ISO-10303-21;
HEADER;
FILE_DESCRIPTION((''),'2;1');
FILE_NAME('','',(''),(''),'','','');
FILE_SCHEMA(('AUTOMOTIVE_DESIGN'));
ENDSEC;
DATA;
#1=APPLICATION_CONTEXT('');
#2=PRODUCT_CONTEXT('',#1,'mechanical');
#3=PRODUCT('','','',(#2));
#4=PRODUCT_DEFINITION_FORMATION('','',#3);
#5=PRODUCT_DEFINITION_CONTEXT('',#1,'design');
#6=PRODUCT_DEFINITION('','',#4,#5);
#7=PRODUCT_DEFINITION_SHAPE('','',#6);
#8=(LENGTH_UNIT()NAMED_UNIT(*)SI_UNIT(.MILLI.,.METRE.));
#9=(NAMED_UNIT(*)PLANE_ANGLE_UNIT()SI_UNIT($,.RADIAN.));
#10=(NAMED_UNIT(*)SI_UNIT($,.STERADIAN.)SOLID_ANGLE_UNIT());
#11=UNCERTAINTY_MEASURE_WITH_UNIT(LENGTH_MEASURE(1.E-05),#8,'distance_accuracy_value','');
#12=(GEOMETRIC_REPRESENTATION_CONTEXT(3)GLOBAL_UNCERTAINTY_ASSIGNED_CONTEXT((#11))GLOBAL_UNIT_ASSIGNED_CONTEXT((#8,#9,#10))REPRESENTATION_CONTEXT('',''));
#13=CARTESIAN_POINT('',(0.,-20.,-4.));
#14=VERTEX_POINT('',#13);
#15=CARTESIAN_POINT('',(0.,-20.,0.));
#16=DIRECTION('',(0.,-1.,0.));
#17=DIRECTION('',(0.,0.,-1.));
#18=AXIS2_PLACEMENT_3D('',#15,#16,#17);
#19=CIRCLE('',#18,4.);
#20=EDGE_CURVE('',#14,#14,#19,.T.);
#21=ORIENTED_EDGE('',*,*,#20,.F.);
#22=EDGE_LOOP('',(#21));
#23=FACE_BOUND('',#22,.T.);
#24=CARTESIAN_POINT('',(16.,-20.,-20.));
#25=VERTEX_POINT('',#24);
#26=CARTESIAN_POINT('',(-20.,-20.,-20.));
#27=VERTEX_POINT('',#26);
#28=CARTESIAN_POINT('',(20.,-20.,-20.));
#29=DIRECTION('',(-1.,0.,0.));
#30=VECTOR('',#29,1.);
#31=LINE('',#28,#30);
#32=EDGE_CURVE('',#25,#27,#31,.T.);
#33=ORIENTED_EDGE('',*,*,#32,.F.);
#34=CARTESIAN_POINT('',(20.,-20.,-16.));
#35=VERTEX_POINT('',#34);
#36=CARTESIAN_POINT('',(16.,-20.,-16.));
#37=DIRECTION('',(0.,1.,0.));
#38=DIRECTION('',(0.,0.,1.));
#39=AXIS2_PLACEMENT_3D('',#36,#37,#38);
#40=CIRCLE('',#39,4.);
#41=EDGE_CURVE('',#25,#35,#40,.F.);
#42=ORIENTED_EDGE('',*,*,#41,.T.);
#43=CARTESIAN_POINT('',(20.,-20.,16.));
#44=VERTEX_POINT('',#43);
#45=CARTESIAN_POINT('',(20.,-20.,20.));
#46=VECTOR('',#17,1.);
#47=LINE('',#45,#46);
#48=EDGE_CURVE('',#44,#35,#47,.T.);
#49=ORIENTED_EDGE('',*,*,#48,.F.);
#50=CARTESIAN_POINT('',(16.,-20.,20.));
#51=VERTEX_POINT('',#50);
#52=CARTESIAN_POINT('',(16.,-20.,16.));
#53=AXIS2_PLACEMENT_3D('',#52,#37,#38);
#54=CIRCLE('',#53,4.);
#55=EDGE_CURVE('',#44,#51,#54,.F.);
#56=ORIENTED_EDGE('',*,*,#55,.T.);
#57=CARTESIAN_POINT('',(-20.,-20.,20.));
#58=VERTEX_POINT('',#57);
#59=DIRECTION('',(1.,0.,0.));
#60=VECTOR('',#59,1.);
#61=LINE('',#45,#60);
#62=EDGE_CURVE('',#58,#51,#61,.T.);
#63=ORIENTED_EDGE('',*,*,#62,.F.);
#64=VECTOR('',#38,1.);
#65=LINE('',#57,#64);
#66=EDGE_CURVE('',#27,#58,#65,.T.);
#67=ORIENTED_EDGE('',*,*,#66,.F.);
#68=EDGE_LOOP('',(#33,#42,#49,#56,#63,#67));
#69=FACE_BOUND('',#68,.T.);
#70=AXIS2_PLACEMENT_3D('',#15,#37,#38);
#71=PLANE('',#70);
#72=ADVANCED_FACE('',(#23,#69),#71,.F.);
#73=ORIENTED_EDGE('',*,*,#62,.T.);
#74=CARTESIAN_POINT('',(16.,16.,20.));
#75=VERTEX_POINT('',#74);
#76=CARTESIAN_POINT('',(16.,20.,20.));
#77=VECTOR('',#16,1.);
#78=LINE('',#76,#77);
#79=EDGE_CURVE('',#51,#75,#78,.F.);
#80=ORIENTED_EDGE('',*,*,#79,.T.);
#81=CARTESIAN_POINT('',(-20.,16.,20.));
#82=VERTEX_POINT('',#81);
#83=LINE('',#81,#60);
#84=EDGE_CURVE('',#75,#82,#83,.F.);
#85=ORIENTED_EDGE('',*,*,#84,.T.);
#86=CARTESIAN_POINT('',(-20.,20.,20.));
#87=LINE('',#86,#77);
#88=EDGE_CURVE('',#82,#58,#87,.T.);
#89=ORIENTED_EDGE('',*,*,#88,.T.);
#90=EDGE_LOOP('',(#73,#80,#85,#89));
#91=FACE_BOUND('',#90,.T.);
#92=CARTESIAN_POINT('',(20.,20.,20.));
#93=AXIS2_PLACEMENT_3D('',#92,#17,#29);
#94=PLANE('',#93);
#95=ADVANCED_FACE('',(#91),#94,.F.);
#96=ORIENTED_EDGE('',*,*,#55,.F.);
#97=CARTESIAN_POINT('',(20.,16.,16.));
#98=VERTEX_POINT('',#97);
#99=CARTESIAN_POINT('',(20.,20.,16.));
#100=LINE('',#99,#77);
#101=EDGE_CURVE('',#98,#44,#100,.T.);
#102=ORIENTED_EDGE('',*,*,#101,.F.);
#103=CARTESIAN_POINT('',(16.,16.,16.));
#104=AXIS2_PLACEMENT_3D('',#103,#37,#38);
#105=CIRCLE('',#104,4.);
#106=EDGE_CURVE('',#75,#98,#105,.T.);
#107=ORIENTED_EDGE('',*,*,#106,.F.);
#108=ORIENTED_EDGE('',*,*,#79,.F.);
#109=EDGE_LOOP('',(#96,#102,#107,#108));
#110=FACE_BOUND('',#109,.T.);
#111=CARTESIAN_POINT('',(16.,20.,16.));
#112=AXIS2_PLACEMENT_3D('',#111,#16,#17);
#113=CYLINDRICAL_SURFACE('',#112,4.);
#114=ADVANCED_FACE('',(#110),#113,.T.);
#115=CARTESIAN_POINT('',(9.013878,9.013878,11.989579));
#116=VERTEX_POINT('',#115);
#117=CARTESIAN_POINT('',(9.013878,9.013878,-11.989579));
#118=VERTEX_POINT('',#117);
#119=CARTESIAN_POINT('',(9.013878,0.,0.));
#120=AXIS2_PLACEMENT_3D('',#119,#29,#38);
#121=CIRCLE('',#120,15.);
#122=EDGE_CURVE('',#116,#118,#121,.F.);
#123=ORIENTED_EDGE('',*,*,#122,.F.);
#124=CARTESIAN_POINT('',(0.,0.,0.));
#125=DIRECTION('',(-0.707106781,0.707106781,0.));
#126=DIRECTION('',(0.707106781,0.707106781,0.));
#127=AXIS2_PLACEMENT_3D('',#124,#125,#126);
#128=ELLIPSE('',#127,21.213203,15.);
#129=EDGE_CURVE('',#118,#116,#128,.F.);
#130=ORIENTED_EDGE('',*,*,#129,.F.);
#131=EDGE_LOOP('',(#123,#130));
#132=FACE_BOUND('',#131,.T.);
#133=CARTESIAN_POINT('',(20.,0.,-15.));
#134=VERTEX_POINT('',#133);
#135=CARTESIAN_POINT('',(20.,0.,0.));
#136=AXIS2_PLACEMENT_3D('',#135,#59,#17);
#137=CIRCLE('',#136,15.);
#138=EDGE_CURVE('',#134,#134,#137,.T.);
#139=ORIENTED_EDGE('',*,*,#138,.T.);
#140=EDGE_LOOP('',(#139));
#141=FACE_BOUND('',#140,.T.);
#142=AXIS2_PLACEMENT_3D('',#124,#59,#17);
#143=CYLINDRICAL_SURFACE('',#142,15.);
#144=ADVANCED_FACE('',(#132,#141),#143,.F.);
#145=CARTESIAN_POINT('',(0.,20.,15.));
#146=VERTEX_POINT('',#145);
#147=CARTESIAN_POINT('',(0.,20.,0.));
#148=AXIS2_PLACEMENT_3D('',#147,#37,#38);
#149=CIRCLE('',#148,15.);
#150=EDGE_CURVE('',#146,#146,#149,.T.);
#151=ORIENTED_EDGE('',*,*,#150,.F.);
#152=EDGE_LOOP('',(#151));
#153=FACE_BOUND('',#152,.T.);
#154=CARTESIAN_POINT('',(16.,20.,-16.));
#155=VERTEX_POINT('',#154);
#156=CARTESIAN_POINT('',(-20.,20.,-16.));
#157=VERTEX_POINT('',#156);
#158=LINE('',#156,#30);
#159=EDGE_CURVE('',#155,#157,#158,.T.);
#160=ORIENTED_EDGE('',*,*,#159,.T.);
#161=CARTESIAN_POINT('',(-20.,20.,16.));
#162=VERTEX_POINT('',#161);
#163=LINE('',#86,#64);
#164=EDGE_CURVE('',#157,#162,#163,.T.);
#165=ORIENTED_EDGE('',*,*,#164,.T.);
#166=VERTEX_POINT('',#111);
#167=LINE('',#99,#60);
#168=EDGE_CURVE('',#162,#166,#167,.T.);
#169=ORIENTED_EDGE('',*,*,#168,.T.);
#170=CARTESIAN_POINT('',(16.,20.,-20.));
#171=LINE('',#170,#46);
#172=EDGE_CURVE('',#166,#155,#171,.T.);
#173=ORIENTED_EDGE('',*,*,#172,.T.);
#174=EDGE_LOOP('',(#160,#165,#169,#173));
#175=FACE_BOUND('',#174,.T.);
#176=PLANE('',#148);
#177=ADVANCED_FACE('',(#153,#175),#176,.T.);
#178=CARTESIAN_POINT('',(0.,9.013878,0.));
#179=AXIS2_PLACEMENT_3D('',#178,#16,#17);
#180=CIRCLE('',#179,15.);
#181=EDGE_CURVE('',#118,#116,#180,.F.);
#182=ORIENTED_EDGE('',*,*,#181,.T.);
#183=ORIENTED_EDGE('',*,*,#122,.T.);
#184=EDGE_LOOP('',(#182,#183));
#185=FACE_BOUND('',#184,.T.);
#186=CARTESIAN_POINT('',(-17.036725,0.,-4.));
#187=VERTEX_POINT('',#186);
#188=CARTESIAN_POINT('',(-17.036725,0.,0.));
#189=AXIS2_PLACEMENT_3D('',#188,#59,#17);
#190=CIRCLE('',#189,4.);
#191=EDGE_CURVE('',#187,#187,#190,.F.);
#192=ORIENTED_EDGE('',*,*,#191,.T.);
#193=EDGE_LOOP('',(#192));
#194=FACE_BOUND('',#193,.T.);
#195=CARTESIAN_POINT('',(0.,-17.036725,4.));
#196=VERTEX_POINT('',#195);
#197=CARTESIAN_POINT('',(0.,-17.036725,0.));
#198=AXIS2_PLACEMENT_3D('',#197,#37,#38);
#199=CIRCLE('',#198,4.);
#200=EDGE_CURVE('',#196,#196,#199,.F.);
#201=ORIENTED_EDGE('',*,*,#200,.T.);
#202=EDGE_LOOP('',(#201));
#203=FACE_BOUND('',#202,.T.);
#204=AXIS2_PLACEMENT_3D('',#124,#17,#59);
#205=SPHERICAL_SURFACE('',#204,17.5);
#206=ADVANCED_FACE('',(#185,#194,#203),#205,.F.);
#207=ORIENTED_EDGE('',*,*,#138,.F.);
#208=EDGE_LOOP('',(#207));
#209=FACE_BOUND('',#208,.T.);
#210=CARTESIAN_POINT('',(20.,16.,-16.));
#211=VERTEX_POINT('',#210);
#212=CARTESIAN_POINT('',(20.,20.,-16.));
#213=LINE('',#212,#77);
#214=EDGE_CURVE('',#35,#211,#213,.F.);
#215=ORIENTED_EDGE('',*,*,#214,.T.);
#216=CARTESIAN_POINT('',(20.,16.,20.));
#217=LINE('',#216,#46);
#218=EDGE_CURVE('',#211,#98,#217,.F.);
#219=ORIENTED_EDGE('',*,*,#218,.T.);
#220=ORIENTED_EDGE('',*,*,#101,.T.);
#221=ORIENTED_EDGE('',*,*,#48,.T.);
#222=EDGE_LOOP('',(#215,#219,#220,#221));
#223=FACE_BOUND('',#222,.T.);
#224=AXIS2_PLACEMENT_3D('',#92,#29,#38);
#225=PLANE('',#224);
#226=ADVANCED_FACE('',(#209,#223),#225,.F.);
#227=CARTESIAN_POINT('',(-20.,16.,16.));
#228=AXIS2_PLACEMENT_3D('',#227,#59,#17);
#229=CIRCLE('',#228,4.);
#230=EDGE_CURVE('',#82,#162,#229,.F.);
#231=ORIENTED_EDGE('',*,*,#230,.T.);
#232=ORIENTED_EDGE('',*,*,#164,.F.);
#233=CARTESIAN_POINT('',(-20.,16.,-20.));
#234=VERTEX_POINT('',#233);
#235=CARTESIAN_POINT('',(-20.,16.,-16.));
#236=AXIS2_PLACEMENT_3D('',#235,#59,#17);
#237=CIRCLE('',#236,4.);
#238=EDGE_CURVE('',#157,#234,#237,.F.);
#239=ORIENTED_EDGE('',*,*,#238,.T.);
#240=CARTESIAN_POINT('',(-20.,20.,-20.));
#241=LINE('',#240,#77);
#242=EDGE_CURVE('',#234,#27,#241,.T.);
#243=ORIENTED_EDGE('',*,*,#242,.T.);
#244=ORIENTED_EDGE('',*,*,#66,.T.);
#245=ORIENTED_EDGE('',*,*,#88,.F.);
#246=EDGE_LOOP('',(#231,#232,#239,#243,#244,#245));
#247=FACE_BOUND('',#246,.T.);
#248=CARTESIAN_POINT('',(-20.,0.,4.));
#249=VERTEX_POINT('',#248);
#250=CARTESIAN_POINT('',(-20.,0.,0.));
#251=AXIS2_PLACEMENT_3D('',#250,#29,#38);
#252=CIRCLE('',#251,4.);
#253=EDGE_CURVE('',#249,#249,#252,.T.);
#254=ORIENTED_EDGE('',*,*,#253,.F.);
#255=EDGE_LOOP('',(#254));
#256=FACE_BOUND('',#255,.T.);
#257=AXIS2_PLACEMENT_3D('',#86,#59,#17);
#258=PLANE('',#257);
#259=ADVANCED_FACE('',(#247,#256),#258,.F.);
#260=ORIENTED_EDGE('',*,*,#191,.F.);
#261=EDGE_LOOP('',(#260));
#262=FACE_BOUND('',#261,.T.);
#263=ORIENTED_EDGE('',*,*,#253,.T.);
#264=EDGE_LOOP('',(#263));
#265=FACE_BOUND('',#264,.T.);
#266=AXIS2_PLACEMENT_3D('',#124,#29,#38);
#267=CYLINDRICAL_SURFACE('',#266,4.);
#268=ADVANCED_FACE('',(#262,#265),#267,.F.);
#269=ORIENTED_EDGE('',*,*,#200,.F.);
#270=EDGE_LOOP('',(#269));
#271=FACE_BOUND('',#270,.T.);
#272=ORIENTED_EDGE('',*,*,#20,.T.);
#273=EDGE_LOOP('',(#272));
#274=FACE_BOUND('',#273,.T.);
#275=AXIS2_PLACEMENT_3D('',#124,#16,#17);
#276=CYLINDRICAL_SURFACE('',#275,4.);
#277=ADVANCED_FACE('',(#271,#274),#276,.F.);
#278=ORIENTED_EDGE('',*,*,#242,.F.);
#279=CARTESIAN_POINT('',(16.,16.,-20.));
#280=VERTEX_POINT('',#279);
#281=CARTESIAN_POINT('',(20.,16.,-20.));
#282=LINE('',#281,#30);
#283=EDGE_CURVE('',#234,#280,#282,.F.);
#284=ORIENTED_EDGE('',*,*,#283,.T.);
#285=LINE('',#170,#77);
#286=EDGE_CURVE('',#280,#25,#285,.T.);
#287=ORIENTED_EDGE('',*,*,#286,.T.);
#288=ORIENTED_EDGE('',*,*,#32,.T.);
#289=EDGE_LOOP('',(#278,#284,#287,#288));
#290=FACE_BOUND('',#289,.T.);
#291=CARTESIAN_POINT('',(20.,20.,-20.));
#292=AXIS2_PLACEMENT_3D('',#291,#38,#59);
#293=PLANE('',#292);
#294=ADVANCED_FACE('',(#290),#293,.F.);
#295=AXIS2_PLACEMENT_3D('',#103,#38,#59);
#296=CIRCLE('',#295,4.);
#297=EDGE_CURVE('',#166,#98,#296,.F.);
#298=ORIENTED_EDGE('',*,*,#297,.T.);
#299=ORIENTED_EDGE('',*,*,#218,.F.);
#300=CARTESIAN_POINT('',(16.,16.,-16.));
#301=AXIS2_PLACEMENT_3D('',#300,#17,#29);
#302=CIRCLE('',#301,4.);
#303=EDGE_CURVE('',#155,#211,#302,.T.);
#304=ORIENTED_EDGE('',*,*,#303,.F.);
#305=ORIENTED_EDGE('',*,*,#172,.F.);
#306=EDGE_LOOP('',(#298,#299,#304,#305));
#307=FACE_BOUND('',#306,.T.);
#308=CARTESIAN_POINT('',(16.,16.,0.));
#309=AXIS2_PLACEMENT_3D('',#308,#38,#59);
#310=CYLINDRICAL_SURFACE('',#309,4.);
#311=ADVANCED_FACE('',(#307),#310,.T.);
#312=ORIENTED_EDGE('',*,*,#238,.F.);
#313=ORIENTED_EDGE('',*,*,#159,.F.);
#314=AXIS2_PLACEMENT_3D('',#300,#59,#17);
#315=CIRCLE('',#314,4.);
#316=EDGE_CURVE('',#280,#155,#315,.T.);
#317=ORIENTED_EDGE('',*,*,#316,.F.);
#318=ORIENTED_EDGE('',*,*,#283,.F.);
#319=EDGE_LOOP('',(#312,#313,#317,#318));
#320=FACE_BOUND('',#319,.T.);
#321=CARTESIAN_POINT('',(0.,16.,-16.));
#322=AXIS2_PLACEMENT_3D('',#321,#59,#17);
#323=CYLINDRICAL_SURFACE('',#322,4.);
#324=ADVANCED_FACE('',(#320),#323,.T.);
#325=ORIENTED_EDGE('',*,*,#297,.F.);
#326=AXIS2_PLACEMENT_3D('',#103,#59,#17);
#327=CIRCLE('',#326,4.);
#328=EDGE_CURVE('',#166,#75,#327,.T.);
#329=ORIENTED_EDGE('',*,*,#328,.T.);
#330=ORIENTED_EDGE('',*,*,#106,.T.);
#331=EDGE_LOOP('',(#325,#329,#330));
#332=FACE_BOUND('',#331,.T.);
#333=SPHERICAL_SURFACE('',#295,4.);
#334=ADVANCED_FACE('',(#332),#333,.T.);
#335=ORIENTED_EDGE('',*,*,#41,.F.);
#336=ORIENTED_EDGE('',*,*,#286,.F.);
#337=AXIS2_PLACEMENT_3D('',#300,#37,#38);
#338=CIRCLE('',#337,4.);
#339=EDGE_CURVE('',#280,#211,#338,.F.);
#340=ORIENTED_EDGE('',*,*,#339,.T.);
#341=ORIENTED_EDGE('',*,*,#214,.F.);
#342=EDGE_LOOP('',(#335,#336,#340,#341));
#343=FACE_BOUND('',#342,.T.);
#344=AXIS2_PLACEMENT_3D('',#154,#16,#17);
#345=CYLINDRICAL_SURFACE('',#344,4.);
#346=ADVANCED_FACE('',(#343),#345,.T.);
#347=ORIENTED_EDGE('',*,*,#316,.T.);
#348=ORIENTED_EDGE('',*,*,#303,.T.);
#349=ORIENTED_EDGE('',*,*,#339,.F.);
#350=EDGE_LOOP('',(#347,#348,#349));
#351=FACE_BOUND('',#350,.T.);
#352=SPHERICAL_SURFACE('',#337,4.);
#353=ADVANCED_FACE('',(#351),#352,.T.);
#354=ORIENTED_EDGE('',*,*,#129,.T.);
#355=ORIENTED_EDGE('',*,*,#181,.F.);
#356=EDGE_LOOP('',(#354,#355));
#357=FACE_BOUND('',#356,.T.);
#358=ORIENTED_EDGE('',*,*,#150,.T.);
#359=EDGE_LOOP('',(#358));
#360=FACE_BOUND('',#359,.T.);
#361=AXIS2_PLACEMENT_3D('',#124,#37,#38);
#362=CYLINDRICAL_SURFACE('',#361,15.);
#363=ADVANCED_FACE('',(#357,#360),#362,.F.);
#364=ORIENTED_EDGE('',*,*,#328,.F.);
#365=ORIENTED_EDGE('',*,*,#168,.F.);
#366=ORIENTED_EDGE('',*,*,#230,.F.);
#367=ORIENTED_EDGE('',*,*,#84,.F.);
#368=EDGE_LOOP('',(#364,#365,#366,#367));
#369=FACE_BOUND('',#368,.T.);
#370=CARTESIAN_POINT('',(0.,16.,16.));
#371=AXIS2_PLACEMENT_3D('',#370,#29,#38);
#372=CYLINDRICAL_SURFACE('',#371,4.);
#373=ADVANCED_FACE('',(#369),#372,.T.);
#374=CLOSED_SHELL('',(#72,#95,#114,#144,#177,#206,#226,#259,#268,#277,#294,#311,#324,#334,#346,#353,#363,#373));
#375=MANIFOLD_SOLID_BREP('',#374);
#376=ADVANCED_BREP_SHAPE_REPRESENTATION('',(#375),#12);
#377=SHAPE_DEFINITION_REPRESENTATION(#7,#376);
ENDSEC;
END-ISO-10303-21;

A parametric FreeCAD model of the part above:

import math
import FreeCAD as App
import Part
import Sketcher


def edges_at(feature, points):
    """Names of the edges that pass closest to the given points."""
    edges = feature.Shape.Edges
    near = lambda p: min(range(len(edges)), key=lambda i: edges[i].distToShape(Part.Vertex(*p))[0])
    return sorted({f"Edge{near(p) + 1}" for p in points})


def add_polygon(sketch, points):
    """Adds a closed chain of lines whose ends are joined by coincident constraints."""
    first, n = sketch.GeometryCount, len(points)
    for a, b in zip(points, points[1:] + points[:1]):
        sketch.addGeometry(Part.LineSegment(App.Vector(*a, 0), App.Vector(*b, 0)), False)
    for i in range(n):
        sketch.addConstraint(Sketcher.Constraint("Coincident", first + i, 2, first + (i + 1) % n, 1))

doc = App.newDocument("Part")
body = doc.addObject("PartDesign::Body", "Body")

# Sketch on XZ plane
sketch1 = body.newObject("Sketcher::SketchObject", "Sketch")
sketch1.AttachmentSupport = (doc.getObject("XZ_Plane"), [""])
sketch1.MapMode = "FlatFace"
add_polygon(sketch1, [(-20, -20), (-20, 20), (20, 20), (20, -20)])  # lines 0-3
sketch1.addConstraint(Sketcher.Constraint("Vertical", 0))
sketch1.addConstraint(Sketcher.Constraint("Horizontal", 1))
sketch1.addConstraint(Sketcher.Constraint("Vertical", 2))
sketch1.addConstraint(Sketcher.Constraint("Horizontal", 3))
sketch1.addConstraint(Sketcher.Constraint("Symmetric", 0, 2, 2, 2, -1, 1))
sketch1.addConstraint(Sketcher.Constraint("Equal", 3, 0))
sketch1.addConstraint(Sketcher.Constraint("DistanceX", 1, 1, 1, 2, 40.0))
pad1 = body.newObject("PartDesign::Pad", "Pad")
pad1.Profile = sketch1
pad1.Length = 40
pad1.Midplane = True
doc.recompute()

fillet = body.newObject("PartDesign::Fillet", "Fillet")
fillet.Base = (pad1, edges_at(pad1, [
    (20, 20, 0),
    (0, 20, -20),
    (20, 0, -20),
    (20, 0, 20),
    (0, 20, 20),
]))
fillet.Radius = 4

# Sketch on XZ plane
sketch2 = body.newObject("Sketcher::SketchObject", "Sketch001")
sketch2.AttachmentSupport = (doc.getObject("XZ_Plane"), [""])
sketch2.MapMode = "FlatFace"
sketch2.addGeometry(Part.LineSegment(App.Vector(0, 18, 0), App.Vector(0, -18, 0)), False)
sketch2.addGeometry(Part.ArcOfCircle(Part.Circle(App.Vector(0, 0, 0), App.Vector(0, 0, 1), 18), math.radians(90), math.radians(270)), False)
sketch2.addConstraint(Sketcher.Constraint("Coincident", 0, 1, 1, 1))
sketch2.addConstraint(Sketcher.Constraint("Coincident", 1, 2, 0, 2))
sketch2.addConstraint(Sketcher.Constraint("Vertical", 0))
sketch2.addConstraint(Sketcher.Constraint("Coincident", 1, 3, -1, 1))
sketch2.addConstraint(Sketcher.Constraint("PointOnObject", 0, 1, -2))
sketch2.addConstraint(Sketcher.Constraint("Radius", 1, 17.5))
groove = body.newObject("PartDesign::Groove", "Groove")
groove.Profile = sketch2
groove.ReferenceAxis = (sketch2, ["V_Axis"])
groove.Angle = 360

# Sketch on XZ plane
sketch3 = body.newObject("Sketcher::SketchObject", "Sketch002")
sketch3.AttachmentSupport = (doc.getObject("XZ_Plane"), [""])
sketch3.MapMode = "FlatFace"
sketch3.AttachmentOffset = App.Placement(App.Vector(0, 0, -20), App.Rotation())
sketch3.addGeometry(Part.Circle(App.Vector(0, 0, 0), App.Vector(0, 0, 1), 15), False)
sketch3.addConstraint(Sketcher.Constraint("Coincident", 0, 3, -1, 1))
sketch3.addConstraint(Sketcher.Constraint("Diameter", 0, 30.0))
pocket1 = body.newObject("PartDesign::Pocket", "Pocket")
pocket1.Profile = sketch3
pocket1.Length = 20
pocket1.Reversed = True

# Sketch on YZ plane
sketch4 = body.newObject("Sketcher::SketchObject", "Sketch003")
sketch4.AttachmentSupport = (doc.getObject("YZ_Plane"), [""])
sketch4.MapMode = "FlatFace"
sketch4.AttachmentOffset = App.Placement(App.Vector(0, 0, 20), App.Rotation())
sketch4.addGeometry(Part.Circle(App.Vector(0, 0, 0), App.Vector(0, 0, 1), 15), False)
sketch4.addConstraint(Sketcher.Constraint("Coincident", 0, 3, -1, 1))
sketch4.addConstraint(Sketcher.Constraint("Diameter", 0, 30.0))
pocket2 = body.newObject("PartDesign::Pocket", "Pocket001")
pocket2.Profile = sketch4
pocket2.Length = 20

# Sketch on XZ plane
sketch5 = body.newObject("Sketcher::SketchObject", "Sketch004")
sketch5.AttachmentSupport = (doc.getObject("XZ_Plane"), [""])
sketch5.MapMode = "FlatFace"
sketch5.AttachmentOffset = App.Placement(App.Vector(0, 0, 20), App.Rotation())
sketch5.addGeometry(Part.Circle(App.Vector(0, 0, 0), App.Vector(0, 0, 1), 4), False)
sketch5.addConstraint(Sketcher.Constraint("Coincident", 0, 3, -1, 1))
sketch5.addConstraint(Sketcher.Constraint("Diameter", 0, 8.0))
pocket3 = body.newObject("PartDesign::Pocket", "Pocket002")
pocket3.Profile = sketch5
pocket3.Length = 20

# Sketch on YZ plane
sketch6 = body.newObject("Sketcher::SketchObject", "Sketch005")
sketch6.AttachmentSupport = (doc.getObject("YZ_Plane"), [""])
sketch6.MapMode = "FlatFace"
sketch6.AttachmentOffset = App.Placement(App.Vector(0, 0, -20), App.Rotation())
sketch6.addGeometry(Part.Circle(App.Vector(0, 0, 0), App.Vector(0, 0, 1), 4), False)
sketch6.addConstraint(Sketcher.Constraint("Coincident", 0, 3, -1, 1))
sketch6.addConstraint(Sketcher.Constraint("Diameter", 0, 8.0))
pocket4 = body.newObject("PartDesign::Pocket", "Pocket003")
pocket4.Profile = sketch6
pocket4.Length = 20
pocket4.Reversed = True

doc.recompute()
